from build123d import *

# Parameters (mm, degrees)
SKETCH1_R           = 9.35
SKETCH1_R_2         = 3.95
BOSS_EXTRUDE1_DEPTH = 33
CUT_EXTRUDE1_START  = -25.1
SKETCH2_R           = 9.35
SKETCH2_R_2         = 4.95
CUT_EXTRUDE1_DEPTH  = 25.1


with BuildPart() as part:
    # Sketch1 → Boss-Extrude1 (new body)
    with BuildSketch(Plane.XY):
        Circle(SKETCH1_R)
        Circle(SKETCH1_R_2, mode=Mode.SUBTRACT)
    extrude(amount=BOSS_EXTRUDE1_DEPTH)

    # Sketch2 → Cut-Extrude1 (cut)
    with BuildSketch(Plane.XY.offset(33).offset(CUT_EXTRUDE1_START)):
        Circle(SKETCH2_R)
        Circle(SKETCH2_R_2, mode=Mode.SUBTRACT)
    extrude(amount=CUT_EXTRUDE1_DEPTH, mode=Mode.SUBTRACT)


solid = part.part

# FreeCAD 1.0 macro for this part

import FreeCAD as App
import Part
import Sketcher

doc = App.newDocument("Part")
params = doc.addObject("Spreadsheet::Sheet", "Params")
for row, (alias, value) in enumerate([
    ("sketch1_diameter", "18.7 mm"),
    ("sketch1_diameter2", "7.9 mm"),
    ("pad1_length", "33 mm"),
    ("sketch2_diameter", "18.7 mm"),
    ("sketch2_diameter2", "9.9 mm"),
    ("pocket1_length", "25.1 mm"),
], start=1):
    params.set(f"A{row}", alias)
    params.set(f"B{row}", "=" + value)
    params.setAlias(f"B{row}", alias)

body = doc.addObject("PartDesign::Body", "Body")

sketch1 = body.newObject("Sketcher::SketchObject", "Sketch")
sketch1.AttachmentSupport = (doc.getObject("XY_Plane"), [""])
sketch1.MapMode = "FlatFace"
sketch1.addGeometry([
    Part.Circle(App.Vector(0, 0, 0), App.Vector(0, 0, 1), 9.3),
    Part.Circle(App.Vector(0, 0, 0), App.Vector(0, 0, 1), 4),
], False)
sketch1.addConstraint([
    Sketcher.Constraint("Coincident", 0, 3, -1, 1),
    Sketcher.Constraint("Coincident", 1, 3, -1, 1),
    Sketcher.Constraint("Diameter", 0, 18.7),
    Sketcher.Constraint("Diameter", 1, 7.9),
])
sketch1.setExpression("Constraints[2]", "Params.sketch1_diameter")
sketch1.setExpression("Constraints[3]", "Params.sketch1_diameter2")
pad1 = body.newObject("PartDesign::Pad", "Pad")
pad1.Profile = sketch1
pad1.setExpression("Length", "Params.pad1_length")

sketch2 = body.newObject("Sketcher::SketchObject", "Sketch001")
sketch2.AttachmentSupport = (doc.getObject("XY_Plane"), [""])
sketch2.MapMode = "FlatFace"
sketch2.AttachmentOffset = App.Placement(App.Vector(0, 0, 7.9), App.Rotation())
sketch2.addGeometry([
    Part.Circle(App.Vector(0, 0, 0), App.Vector(0, 0, 1), 9.3),
    Part.Circle(App.Vector(0, 0, 0), App.Vector(0, 0, 1), 5),
], False)
sketch2.addConstraint([
    Sketcher.Constraint("Coincident", 0, 3, -1, 1),
    Sketcher.Constraint("Coincident", 1, 3, -1, 1),
    Sketcher.Constraint("Diameter", 0, 18.7),
    Sketcher.Constraint("Diameter", 1, 9.9),
])
sketch2.setExpression("Constraints[2]", "Params.sketch2_diameter")
sketch2.setExpression("Constraints[3]", "Params.sketch2_diameter2")
pocket1 = body.newObject("PartDesign::Pocket", "Pocket")
pocket1.Profile = sketch2
pocket1.setExpression("Length", "Params.pocket1_length")
pocket1.Reversed = True

doc.recompute()
